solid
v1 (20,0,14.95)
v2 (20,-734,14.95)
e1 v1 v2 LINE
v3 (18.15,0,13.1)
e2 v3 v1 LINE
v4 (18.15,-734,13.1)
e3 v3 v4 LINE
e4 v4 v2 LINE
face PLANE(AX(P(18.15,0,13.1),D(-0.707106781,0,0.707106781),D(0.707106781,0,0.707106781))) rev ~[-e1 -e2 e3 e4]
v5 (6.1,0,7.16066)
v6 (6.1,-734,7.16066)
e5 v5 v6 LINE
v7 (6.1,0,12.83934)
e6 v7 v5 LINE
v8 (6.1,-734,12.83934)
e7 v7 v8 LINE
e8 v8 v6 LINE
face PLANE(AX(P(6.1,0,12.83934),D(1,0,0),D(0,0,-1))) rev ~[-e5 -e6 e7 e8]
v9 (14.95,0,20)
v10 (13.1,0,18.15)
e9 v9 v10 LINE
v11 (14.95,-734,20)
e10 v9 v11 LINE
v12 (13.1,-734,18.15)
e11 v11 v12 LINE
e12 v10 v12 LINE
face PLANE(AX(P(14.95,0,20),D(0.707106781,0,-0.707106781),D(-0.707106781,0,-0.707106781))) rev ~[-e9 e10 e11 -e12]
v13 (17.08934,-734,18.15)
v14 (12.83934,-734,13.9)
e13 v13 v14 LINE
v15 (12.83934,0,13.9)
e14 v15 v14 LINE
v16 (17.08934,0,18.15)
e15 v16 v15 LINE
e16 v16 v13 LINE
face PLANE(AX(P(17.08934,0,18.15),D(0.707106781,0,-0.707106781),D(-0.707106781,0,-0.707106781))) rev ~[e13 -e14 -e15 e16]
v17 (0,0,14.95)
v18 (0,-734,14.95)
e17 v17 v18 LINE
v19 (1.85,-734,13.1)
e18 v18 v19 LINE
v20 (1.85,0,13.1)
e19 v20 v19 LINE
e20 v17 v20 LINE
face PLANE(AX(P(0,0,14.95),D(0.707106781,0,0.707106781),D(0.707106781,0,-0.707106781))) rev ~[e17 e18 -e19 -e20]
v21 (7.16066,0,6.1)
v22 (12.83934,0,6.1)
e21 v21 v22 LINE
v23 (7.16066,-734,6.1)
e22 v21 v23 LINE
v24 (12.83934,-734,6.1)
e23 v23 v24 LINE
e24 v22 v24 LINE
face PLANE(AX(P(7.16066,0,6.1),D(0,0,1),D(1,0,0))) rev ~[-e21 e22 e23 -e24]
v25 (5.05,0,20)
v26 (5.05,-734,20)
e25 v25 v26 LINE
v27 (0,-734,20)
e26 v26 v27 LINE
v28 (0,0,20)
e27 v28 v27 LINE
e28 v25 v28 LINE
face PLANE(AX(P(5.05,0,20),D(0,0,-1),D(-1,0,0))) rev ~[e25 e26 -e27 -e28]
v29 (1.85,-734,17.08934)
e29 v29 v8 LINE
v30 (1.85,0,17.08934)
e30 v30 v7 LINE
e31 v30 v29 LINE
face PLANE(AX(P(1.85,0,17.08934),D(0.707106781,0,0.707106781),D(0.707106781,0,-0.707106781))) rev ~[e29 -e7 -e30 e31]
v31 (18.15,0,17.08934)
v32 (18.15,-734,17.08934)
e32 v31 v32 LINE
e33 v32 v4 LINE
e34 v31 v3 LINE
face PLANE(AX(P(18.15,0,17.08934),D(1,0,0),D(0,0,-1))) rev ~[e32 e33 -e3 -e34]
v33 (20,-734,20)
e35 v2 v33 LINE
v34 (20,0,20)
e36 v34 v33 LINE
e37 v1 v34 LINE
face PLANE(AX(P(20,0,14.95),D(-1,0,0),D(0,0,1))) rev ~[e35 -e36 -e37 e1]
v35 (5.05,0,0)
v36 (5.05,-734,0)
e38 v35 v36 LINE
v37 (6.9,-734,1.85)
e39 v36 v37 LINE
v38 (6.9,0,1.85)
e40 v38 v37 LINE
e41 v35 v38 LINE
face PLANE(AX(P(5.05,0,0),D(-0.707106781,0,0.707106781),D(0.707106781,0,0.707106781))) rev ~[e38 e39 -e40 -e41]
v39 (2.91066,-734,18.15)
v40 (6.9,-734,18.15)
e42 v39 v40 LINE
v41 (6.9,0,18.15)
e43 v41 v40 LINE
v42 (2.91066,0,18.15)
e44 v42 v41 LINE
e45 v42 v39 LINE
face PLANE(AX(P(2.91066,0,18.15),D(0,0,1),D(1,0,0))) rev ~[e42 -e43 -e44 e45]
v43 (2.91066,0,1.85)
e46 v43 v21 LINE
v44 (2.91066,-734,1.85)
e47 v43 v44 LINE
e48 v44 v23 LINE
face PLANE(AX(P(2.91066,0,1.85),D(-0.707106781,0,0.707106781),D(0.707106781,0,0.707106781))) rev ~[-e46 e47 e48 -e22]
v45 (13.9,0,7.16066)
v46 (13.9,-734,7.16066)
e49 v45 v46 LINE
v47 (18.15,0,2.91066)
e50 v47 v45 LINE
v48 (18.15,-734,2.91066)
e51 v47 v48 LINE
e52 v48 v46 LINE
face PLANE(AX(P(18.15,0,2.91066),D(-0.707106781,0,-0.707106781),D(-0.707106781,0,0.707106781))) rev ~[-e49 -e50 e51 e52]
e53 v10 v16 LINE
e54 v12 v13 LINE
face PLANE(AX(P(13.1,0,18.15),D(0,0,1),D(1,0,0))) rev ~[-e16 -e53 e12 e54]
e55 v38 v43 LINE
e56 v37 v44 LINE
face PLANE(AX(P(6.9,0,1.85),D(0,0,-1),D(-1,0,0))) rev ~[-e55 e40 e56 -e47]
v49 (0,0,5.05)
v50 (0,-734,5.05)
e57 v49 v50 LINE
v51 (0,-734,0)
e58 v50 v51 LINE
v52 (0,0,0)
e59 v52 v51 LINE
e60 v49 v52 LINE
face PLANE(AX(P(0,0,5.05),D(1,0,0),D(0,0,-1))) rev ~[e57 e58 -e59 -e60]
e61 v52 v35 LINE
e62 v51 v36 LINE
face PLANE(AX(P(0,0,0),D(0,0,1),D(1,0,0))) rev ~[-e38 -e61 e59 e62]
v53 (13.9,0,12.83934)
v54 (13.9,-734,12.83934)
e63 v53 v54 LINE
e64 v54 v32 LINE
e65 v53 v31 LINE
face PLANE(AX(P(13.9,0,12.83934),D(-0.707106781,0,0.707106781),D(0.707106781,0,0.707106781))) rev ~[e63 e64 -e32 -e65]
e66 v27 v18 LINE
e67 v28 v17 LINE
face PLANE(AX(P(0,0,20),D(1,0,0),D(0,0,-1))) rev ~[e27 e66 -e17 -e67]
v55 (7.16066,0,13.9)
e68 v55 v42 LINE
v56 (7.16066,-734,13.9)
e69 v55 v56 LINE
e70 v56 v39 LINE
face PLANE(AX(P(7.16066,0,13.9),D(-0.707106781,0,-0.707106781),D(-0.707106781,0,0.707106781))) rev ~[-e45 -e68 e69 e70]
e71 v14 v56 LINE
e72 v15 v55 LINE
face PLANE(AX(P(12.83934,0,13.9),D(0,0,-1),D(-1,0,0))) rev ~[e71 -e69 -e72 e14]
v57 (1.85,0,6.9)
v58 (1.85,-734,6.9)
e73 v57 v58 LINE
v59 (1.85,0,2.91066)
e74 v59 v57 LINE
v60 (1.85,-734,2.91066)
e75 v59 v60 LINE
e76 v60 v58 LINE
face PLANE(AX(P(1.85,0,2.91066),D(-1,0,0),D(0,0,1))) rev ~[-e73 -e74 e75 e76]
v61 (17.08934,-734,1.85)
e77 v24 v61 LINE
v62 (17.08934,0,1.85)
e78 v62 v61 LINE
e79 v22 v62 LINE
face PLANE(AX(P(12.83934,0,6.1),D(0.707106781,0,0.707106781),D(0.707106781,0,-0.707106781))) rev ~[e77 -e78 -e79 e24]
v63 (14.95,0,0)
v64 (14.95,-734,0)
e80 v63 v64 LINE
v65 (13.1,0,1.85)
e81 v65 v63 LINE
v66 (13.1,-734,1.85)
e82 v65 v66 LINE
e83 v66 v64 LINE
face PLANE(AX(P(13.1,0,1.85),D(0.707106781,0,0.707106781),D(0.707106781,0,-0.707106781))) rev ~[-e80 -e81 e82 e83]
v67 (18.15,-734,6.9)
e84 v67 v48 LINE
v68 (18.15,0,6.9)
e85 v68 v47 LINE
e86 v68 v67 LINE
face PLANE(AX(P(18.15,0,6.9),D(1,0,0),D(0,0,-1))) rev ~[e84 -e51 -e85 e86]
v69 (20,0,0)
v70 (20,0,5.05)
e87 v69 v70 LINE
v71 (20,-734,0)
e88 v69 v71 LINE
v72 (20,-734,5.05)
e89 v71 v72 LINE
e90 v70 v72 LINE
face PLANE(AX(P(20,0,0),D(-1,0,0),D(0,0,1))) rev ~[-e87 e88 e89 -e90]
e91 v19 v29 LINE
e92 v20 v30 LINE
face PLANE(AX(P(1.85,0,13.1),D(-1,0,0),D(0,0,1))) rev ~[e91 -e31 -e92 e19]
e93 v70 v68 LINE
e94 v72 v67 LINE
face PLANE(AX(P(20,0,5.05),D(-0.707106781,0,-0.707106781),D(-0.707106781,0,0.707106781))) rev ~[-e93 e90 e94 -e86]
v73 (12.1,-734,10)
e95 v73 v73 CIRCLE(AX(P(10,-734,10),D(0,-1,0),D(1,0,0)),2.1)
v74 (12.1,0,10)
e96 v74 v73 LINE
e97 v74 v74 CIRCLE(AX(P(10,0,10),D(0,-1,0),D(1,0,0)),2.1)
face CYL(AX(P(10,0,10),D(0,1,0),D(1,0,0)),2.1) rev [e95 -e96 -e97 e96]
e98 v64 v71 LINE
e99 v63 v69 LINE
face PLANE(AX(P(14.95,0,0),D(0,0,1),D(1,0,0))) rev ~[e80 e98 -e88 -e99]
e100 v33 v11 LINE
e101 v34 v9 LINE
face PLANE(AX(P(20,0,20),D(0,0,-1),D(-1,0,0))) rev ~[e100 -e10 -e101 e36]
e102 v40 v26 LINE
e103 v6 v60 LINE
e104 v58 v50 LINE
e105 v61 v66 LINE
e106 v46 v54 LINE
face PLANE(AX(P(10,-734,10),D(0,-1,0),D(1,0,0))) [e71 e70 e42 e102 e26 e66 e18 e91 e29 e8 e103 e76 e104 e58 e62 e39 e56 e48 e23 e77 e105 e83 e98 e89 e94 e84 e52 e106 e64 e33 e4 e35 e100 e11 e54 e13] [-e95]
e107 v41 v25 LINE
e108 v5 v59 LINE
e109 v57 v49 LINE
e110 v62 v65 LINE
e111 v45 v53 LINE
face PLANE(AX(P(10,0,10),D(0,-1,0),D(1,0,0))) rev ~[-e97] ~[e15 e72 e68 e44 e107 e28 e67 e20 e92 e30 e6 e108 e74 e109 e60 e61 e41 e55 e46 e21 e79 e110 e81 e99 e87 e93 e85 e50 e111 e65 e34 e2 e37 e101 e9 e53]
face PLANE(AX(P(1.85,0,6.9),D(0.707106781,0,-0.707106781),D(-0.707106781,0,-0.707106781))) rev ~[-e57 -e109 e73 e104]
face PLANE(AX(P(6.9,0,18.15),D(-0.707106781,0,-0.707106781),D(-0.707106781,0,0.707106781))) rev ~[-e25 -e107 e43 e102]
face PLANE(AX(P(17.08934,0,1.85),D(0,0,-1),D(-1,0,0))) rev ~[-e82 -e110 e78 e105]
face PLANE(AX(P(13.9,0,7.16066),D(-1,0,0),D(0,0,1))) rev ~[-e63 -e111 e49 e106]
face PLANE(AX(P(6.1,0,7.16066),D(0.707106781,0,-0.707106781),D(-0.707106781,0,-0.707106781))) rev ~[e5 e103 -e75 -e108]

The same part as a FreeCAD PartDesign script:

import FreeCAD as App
import Part
import Sketcher
from FreeCAD import Vector
Q = App.Units.Quantity

doc = App.newDocument("Part")
body = doc.addObject("PartDesign::Body", "Body")

# Sketch on XZ plane
sketch1 = body.newObject("Sketcher::SketchObject", "Sketch")
sketch1.AttachmentSupport = (doc.getObject("XZ_Plane"), [""])
sketch1.MapMode = "FlatFace"
sketch1.addGeometry(Part.LineSegment(Vector(0, 0, 0), Vector(5.05, 0, 0)), False)
sketch1.addGeometry(Part.LineSegment(Vector(5.05, 0, 0), Vector(6.9, 1.85, 0)), False)
sketch1.addGeometry(Part.LineSegment(Vector(6.9, 1.85, 0), Vector(2.91066, 1.85, 0)), False)
sketch1.addGeometry(Part.LineSegment(Vector(2.91066, 1.85, 0), Vector(7.16066, 6.1, 0)), False)
sketch1.addGeometry(Part.LineSegment(Vector(7.16066, 6.1, 0), Vector(12.83934, 6.1, 0)), False)
sketch1.addGeometry(Part.LineSegment(Vector(12.83934, 6.1, 0), Vector(17.08934, 1.85, 0)), False)
sketch1.addGeometry(Part.LineSegment(Vector(17.08934, 1.85, 0), Vector(13.1, 1.85, 0)), False)
sketch1.addGeometry(Part.LineSegment(Vector(13.1, 1.85, 0), Vector(14.95, 0, 0)), False)
sketch1.addGeometry(Part.LineSegment(Vector(14.95, 0, 0), Vector(20, 0, 0)), False)
sketch1.addGeometry(Part.LineSegment(Vector(20, 0, 0), Vector(20, 5.05, 0)), False)
sketch1.addGeometry(Part.LineSegment(Vector(20, 5.05, 0), Vector(18.15, 6.9, 0)), False)
sketch1.addGeometry(Part.LineSegment(Vector(18.15, 6.9, 0), Vector(18.15, 2.91066, 0)), False)
sketch1.addGeometry(Part.LineSegment(Vector(18.15, 2.91066, 0), Vector(13.9, 7.16066, 0)), False)
sketch1.addGeometry(Part.LineSegment(Vector(13.9, 7.16066, 0), Vector(13.9, 12.83934, 0)), False)
sketch1.addGeometry(Part.LineSegment(Vector(13.9, 12.83934, 0), Vector(18.15, 17.08934, 0)), False)
sketch1.addGeometry(Part.LineSegment(Vector(18.15, 17.08934, 0), Vector(18.15, 13.1, 0)), False)
sketch1.addGeometry(Part.LineSegment(Vector(18.15, 13.1, 0), Vector(20, 14.95, 0)), False)
sketch1.addGeometry(Part.LineSegment(Vector(20, 14.95, 0), Vector(20, 20, 0)), False)
sketch1.addGeometry(Part.LineSegment(Vector(20, 20, 0), Vector(14.95, 20, 0)), False)
sketch1.addGeometry(Part.LineSegment(Vector(14.95, 20, 0), Vector(13.1, 18.15, 0)), False)
sketch1.addGeometry(Part.LineSegment(Vector(13.1, 18.15, 0), Vector(17.08934, 18.15, 0)), False)
sketch1.addGeometry(Part.LineSegment(Vector(17.08934, 18.15, 0), Vector(12.83934, 13.9, 0)), False)
sketch1.addGeometry(Part.LineSegment(Vector(12.83934, 13.9, 0), Vector(7.16066, 13.9, 0)), False)
sketch1.addGeometry(Part.LineSegment(Vector(7.16066, 13.9, 0), Vector(2.91066, 18.15, 0)), False)
sketch1.addGeometry(Part.LineSegment(Vector(2.91066, 18.15, 0), Vector(6.9, 18.15, 0)), False)
sketch1.addGeometry(Part.LineSegment(Vector(6.9, 18.15, 0), Vector(5.05, 20, 0)), False)
sketch1.addGeometry(Part.LineSegment(Vector(5.05, 20, 0), Vector(0, 20, 0)), False)
sketch1.addGeometry(Part.LineSegment(Vector(0, 20, 0), Vector(0, 14.95, 0)), False)
sketch1.addGeometry(Part.LineSegment(Vector(0, 14.95, 0), Vector(1.85, 13.1, 0)), False)
sketch1.addGeometry(Part.LineSegment(Vector(1.85, 13.1, 0), Vector(1.85, 17.08934, 0)), False)
sketch1.addGeometry(Part.LineSegment(Vector(1.85, 17.08934, 0), Vector(6.1, 12.83934, 0)), False)
sketch1.addGeometry(Part.LineSegment(Vector(6.1, 12.83934, 0), Vector(6.1, 7.16066, 0)), False)
sketch1.addGeometry(Part.LineSegment(Vector(6.1, 7.16066, 0), Vector(1.85, 2.91066, 0)), False)
sketch1.addGeometry(Part.LineSegment(Vector(1.85, 2.91066, 0), Vector(1.85, 6.9, 0)), False)
sketch1.addGeometry(Part.LineSegment(Vector(1.85, 6.9, 0), Vector(0, 5.05, 0)), False)
sketch1.addGeometry(Part.LineSegment(Vector(0, 5.05, 0), Vector(0, 0, 0)), False)
sketch1.addGeometry(Part.Circle(Vector(10, 10, 0), Vector(0, 0, 1), 2.1), False)
sketch1.addConstraint(Sketcher.Constraint("Coincident", 0, 2, 1, 1))
sketch1.addConstraint(Sketcher.Constraint("Coincident", 1, 2, 2, 1))
sketch1.addConstraint(Sketcher.Constraint("Coincident", 2, 2, 3, 1))
sketch1.addConstraint(Sketcher.Constraint("Coincident", 3, 2, 4, 1))
sketch1.addConstraint(Sketcher.Constraint("Coincident", 4, 2, 5, 1))
sketch1.addConstraint(Sketcher.Constraint("Coincident", 5, 2, 6, 1))
sketch1.addConstraint(Sketcher.Constraint("Coincident", 6, 2, 7, 1))
sketch1.addConstraint(Sketcher.Constraint("Coincident", 7, 2, 8, 1))
sketch1.addConstraint(Sketcher.Constraint("Coincident", 8, 2, 9, 1))
sketch1.addConstraint(Sketcher.Constraint("Coincident", 9, 2, 10, 1))
sketch1.addConstraint(Sketcher.Constraint("Coincident", 10, 2, 11, 1))
sketch1.addConstraint(Sketcher.Constraint("Coincident", 11, 2, 12, 1))
sketch1.addConstraint(Sketcher.Constraint("Coincident", 12, 2, 13, 1))
sketch1.addConstraint(Sketcher.Constraint("Coincident", 13, 2, 14, 1))
sketch1.addConstraint(Sketcher.Constraint("Coincident", 14, 2, 15, 1))
sketch1.addConstraint(Sketcher.Constraint("Coincident", 15, 2, 16, 1))
sketch1.addConstraint(Sketcher.Constraint("Coincident", 16, 2, 17, 1))
sketch1.addConstraint(Sketcher.Constraint("Coincident", 17, 2, 18, 1))
sketch1.addConstraint(Sketcher.Constraint("Coincident", 18, 2, 19, 1))
sketch1.addConstraint(Sketcher.Constraint("Coincident", 19, 2, 20, 1))
sketch1.addConstraint(Sketcher.Constraint("Coincident", 20, 2, 21, 1))
sketch1.addConstraint(Sketcher.Constraint("Coincident", 21, 2, 22, 1))
sketch1.addConstraint(Sketcher.Constraint("Coincident", 22, 2, 23, 1))
sketch1.addConstraint(Sketcher.Constraint("Coincident", 23, 2, 24, 1))
sketch1.addConstraint(Sketcher.Constraint("Coincident", 24, 2, 25, 1))
sketch1.addConstraint(Sketcher.Constraint("Coincident", 25, 2, 26, 1))
sketch1.addConstraint(Sketcher.Constraint("Coincident", 26, 2, 27, 1))
sketch1.addConstraint(Sketcher.Constraint("Coincident", 27, 2, 28, 1))
sketch1.addConstraint(Sketcher.Constraint("Coincident", 28, 2, 29, 1))
sketch1.addConstraint(Sketcher.Constraint("Coincident", 29, 2, 30, 1))
sketch1.addConstraint(Sketcher.Constraint("Coincident", 30, 2, 31, 1))
sketch1.addConstraint(Sketcher.Constraint("Coincident", 31, 2, 32, 1))
sketch1.addConstraint(Sketcher.Constraint("Coincident", 32, 2, 33, 1))
sketch1.addConstraint(Sketcher.Constraint("Coincident", 33, 2, 34, 1))
sketch1.addConstraint(Sketcher.Constraint("Coincident", 34, 2, 35, 1))
sketch1.addConstraint(Sketcher.Constraint("Coincident", 35, 2, 0, 1))
sketch1.addConstraint(Sketcher.Constraint("Horizontal", 0))
sketch1.addConstraint(Sketcher.Constraint("Horizontal", 2))
sketch1.addConstraint(Sketcher.Constraint("Horizontal", 4))
sketch1.addConstraint(Sketcher.Constraint("Horizontal", 6))
sketch1.addConstraint(Sketcher.Constraint("Horizontal", 8))
sketch1.addConstraint(Sketcher.Constraint("Vertical", 9))
sketch1.addConstraint(Sketcher.Constraint("Vertical", 11))
sketch1.addConstraint(Sketcher.Constraint("Vertical", 13))
sketch1.addConstraint(Sketcher.Constraint("Vertical", 15))
sketch1.addConstraint(Sketcher.Constraint("Vertical", 17))
sketch1.addConstraint(Sketcher.Constraint("Horizontal", 18))
sketch1.addConstraint(Sketcher.Constraint("Horizontal", 20))
sketch1.addConstraint(Sketcher.Constraint("Horizontal", 22))
sketch1.addConstraint(Sketcher.Constraint("Horizontal", 24))
sketch1.addConstraint(Sketcher.Constraint("Horizontal", 26))
sketch1.addConstraint(Sketcher.Constraint("Vertical", 27))
sketch1.addConstraint(Sketcher.Constraint("Vertical", 29))
sketch1.addConstraint(Sketcher.Constraint("Vertical", 31))
sketch1.addConstraint(Sketcher.Constraint("Vertical", 33))
sketch1.addConstraint(Sketcher.Constraint("Vertical", 35))
sketch1.addConstraint(Sketcher.Constraint("Coincident", 35, 2, -1, 1))
sketch1.addConstraint(Sketcher.Constraint("PointOnObject", 7, 2, -1))
sketch1.addConstraint(Sketcher.Constraint("PointOnObject", 26, 2, -2))
sketch1.addConstraint(Sketcher.Constraint("Parallel", 1, 3))
sketch1.addConstraint(Sketcher.Constraint("Perpendicular", 3, 5))
sketch1.addConstraint(Sketcher.Constraint("Parallel", 5, 7))
sketch1.addConstraint(Sketcher.Constraint("Parallel", 7, 10))
sketch1.addConstraint(Sketcher.Constraint("Parallel", 10, 12))
sketch1.addConstraint(Sketcher.Constraint("Perpendicular", 12, 14))
sketch1.addConstraint(Sketcher.Constraint("Parallel", 14, 16))
sketch1.addConstraint(Sketcher.Constraint("Parallel", 16, 19))
sketch1.addConstraint(Sketcher.Constraint("Parallel", 19, 21))
sketch1.addConstraint(Sketcher.Constraint("Perpendicular", 21, 23))
sketch1.addConstraint(Sketcher.Constraint("Parallel", 23, 25))
sketch1.addConstraint(Sketcher.Constraint("Parallel", 25, 28))
sketch1.addConstraint(Sketcher.Constraint("Parallel", 28, 30))
sketch1.addConstraint(Sketcher.Constraint("Perpendicular", 30, 32))
sketch1.addConstraint(Sketcher.Constraint("Parallel", 32, 34))
sketch1.addConstraint(Sketcher.Constraint("Horizontal", 2, 2, 5, 2))
sketch1.addConstraint(Sketcher.Constraint("Horizontal", 20, 2, 23, 2))
sketch1.addConstraint(Sketcher.Constraint("Horizontal", 18, 2, 25, 2))
sketch1.addConstraint(Sketcher.Constraint("Horizontal", 16, 2, 27, 2))
sketch1.addConstraint(Sketcher.Constraint("Horizontal", 15, 2, 28, 2))
sketch1.addConstraint(Sketcher.Constraint("Horizontal", 14, 2, 29, 2))
sketch1.addConstraint(Sketcher.Constraint("Horizontal", 13, 2, 30, 2))
sketch1.addConstraint(Sketcher.Constraint("Horizontal", 12, 2, 31, 2))
sketch1.addConstraint(Sketcher.Constraint("Horizontal", 11, 2, 32, 2))
sketch1.addConstraint(Sketcher.Constraint("Horizontal", 10, 2, 33, 2))
sketch1.addConstraint(Sketcher.Constraint("Horizontal", 9, 2, 34, 2))
sketch1.addConstraint(Sketcher.Constraint("Vertical", 11, 2, 14, 2))
sketch1.addConstraint(Sketcher.Constraint("Vertical", 9, 2, 16, 2))
sketch1.addConstraint(Sketcher.Constraint("Vertical", 7, 2, 18, 2))
sketch1.addConstraint(Sketcher.Constraint("Vertical", 6, 2, 19, 2))
sketch1.addConstraint(Sketcher.Constraint("Vertical", 5, 2, 20, 2))
sketch1.addConstraint(Sketcher.Constraint("Vertical", 4, 2, 21, 2))
sketch1.addConstraint(Sketcher.Constraint("Vertical", 3, 2, 22, 2))
sketch1.addConstraint(Sketcher.Constraint("Vertical", 1, 2, 24, 2))
sketch1.addConstraint(Sketcher.Constraint("Equal", 2, 6))
sketch1.addConstraint(Sketcher.Constraint("Equal", 0, 8))
sketch1.addConstraint(Sketcher.Constraint("Equal", 26, 9))
sketch1.addConstraint(Sketcher.Constraint("Equal", 24, 11))
sketch1.addConstraint(Sketcher.Constraint("Equal", 22, 13))
sketch1.addConstraint(Sketcher.Constraint("Equal", 11, 15))
sketch1.addConstraint(Sketcher.Constraint("Equal", 9, 17))
sketch1.addConstraint(Sketcher.Constraint("Equal", 7, 10))
sketch1.addConstraint(Sketcher.Constraint("Equal", 5, 12))
sketch1.addConstraint(Sketcher.Constraint("Diameter", 36, Q("4.2 mm")))
sketch1.addConstraint(Sketcher.Constraint("DistanceX", -1, 1, 36, 3, Q("10 mm")))
sketch1.addConstraint(Sketcher.Constraint("DistanceY", -1, 1, 36, 3, Q("10 mm")))
sketch1.addConstraint(Sketcher.Constraint("DistanceX", -1, 1, 8, 2, Q("20 mm")))
sketch1.addConstraint(Sketcher.Constraint("DistanceX", 0, 1, 0, 2, Q("5.05 mm")))
sketch1.addConstraint(Sketcher.Constraint("DistanceX", -1, 1, 1, 2, Q("6.9 mm")))
sketch1.addConstraint(Sketcher.Constraint("DistanceY", -1, 1, 3, 2, Q("6.1 mm")))
sketch1.addConstraint(Sketcher.Constraint("DistanceX", 2, 2, 2, 1, Q("3.98934 mm")))
pad1 = body.newObject("PartDesign::Pad", "Pad")
pad1.Profile = sketch1
pad1.Length = 734

doc.recompute()
